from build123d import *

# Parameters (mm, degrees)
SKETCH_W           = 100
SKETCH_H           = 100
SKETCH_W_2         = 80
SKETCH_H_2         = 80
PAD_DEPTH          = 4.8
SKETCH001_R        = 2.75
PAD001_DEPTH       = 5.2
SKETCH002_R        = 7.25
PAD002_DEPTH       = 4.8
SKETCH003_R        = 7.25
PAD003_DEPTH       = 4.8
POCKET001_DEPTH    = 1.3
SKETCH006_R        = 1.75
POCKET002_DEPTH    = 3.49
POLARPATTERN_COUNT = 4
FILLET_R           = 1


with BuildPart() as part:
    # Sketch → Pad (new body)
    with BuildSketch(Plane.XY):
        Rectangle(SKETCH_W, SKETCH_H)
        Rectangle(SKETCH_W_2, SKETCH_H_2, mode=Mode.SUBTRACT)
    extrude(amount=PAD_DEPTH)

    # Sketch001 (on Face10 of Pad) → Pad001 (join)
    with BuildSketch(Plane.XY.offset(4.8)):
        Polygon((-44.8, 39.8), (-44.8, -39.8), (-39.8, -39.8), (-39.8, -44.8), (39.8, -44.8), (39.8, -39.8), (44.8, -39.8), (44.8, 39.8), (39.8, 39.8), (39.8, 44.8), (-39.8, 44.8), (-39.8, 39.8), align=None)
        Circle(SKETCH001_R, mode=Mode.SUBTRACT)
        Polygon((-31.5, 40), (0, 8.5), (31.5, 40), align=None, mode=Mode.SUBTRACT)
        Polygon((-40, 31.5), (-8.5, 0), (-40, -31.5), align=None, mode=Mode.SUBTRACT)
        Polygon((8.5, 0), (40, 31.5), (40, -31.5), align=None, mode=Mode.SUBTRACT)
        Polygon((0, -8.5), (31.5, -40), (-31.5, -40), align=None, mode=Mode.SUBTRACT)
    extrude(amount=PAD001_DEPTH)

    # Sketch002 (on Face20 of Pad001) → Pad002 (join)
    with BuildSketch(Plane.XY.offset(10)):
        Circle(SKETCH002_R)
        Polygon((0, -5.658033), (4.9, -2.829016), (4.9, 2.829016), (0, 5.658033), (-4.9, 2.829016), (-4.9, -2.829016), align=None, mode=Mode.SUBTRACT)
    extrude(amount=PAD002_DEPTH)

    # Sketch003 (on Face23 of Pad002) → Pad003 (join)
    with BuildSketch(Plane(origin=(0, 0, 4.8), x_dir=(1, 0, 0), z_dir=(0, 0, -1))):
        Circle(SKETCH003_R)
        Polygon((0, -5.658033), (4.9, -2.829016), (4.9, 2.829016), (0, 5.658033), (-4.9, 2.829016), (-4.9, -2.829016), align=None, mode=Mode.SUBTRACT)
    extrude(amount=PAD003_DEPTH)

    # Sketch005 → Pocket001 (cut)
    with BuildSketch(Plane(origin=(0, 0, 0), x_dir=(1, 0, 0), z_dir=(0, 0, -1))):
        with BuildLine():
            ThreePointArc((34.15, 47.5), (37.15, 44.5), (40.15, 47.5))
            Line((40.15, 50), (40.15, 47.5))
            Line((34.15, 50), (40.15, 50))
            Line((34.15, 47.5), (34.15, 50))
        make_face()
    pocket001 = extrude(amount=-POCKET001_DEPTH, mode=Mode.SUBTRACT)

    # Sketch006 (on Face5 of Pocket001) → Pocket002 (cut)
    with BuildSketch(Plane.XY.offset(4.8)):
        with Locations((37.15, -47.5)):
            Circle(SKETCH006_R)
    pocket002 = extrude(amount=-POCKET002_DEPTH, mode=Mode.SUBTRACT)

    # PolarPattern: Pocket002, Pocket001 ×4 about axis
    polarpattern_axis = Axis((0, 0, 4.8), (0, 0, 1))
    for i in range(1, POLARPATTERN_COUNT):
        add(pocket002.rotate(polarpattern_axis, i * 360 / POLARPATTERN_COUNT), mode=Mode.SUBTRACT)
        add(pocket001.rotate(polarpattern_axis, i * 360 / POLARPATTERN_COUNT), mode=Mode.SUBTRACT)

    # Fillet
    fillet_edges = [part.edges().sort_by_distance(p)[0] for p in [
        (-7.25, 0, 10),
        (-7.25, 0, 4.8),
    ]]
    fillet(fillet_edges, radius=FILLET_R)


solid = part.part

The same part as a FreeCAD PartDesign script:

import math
import FreeCAD as App
import Part
import Sketcher
from FreeCAD import Vector
Q = App.Units.Quantity


def edges_at(feature, points):
    """Names of the edges that pass closest to the given points."""
    edges = feature.Shape.Edges
    near = lambda p: min(range(len(edges)), key=lambda i: edges[i].distToShape(Part.Vertex(*p))[0])
    return sorted({f"Edge{near(p) + 1}" for p in points})

doc = App.newDocument("Part")
body = doc.addObject("PartDesign::Body", "Body")

sketch1 = body.newObject("Sketcher::SketchObject", "Sketch")
sketch1.AttachmentSupport = (doc.getObject("XY_Plane"), [""])
sketch1.MapMode = "FlatFace"
sketch1.addGeometry(Part.LineSegment(Vector(-50, 50, 0), Vector(-50, -50, 0)), False)
sketch1.addGeometry(Part.LineSegment(Vector(-50, -50, 0), Vector(50, -50, 0)), False)
sketch1.addGeometry(Part.LineSegment(Vector(50, -50, 0), Vector(50, 50, 0)), False)
sketch1.addGeometry(Part.LineSegment(Vector(50, 50, 0), Vector(-50, 50, 0)), False)
sketch1.addGeometry(Part.LineSegment(Vector(40, -40, 0), Vector(-40, -40, 0)), False)
sketch1.addGeometry(Part.LineSegment(Vector(-40, -40, 0), Vector(-40, 40, 0)), False)
sketch1.addGeometry(Part.LineSegment(Vector(-40, 40, 0), Vector(40, 40, 0)), False)
sketch1.addGeometry(Part.LineSegment(Vector(40, 40, 0), Vector(40, -40, 0)), False)
sketch1.addConstraint(Sketcher.Constraint("Coincident", 0, 2, 1, 1))
sketch1.addConstraint(Sketcher.Constraint("Coincident", 1, 2, 2, 1))
sketch1.addConstraint(Sketcher.Constraint("Coincident", 2, 2, 3, 1))
sketch1.addConstraint(Sketcher.Constraint("Coincident", 3, 2, 0, 1))
sketch1.addConstraint(Sketcher.Constraint("Coincident", 4, 2, 5, 1))
sketch1.addConstraint(Sketcher.Constraint("Coincident", 5, 2, 6, 1))
sketch1.addConstraint(Sketcher.Constraint("Coincident", 6, 2, 7, 1))
sketch1.addConstraint(Sketcher.Constraint("Coincident", 7, 2, 4, 1))
sketch1.addConstraint(Sketcher.Constraint("Vertical", 0))
sketch1.addConstraint(Sketcher.Constraint("Horizontal", 1))
sketch1.addConstraint(Sketcher.Constraint("Vertical", 2))
sketch1.addConstraint(Sketcher.Constraint("Horizontal", 3))
sketch1.addConstraint(Sketcher.Constraint("Horizontal", 4))
sketch1.addConstraint(Sketcher.Constraint("Vertical", 5))
sketch1.addConstraint(Sketcher.Constraint("Horizontal", 6))
sketch1.addConstraint(Sketcher.Constraint("Vertical", 7))
sketch1.addConstraint(Sketcher.Constraint("Symmetric", 0, 2, 2, 2, -1, 1))
sketch1.addConstraint(Sketcher.Constraint("Symmetric", 4, 2, 6, 2, -1, 1))
sketch1.addConstraint(Sketcher.Constraint("Equal", 3, 0))
sketch1.addConstraint(Sketcher.Constraint("Equal", 6, 5))
sketch1.addConstraint(Sketcher.Constraint("DistanceX", 1, 1, 1, 2, Q("100 mm")))
sketch1.addConstraint(Sketcher.Constraint("DistanceX", 4, 2, 4, 1, Q("80 mm")))
pad1 = body.newObject("PartDesign::Pad", "Pad")
pad1.Profile = sketch1
pad1.Length = 4.8

sketch2 = body.newObject("Sketcher::SketchObject", "Sketch001")
sketch2.AttachmentSupport = (doc.getObject("XY_Plane"), [""])
sketch2.MapMode = "FlatFace"
sketch2.AttachmentOffset = App.Placement(Vector(0, 0, 4.8), App.Rotation())
sketch2.addGeometry(Part.LineSegment(Vector(-44.8, 39.8, 0), Vector(-44.8, -39.8, 0)), False)
sketch2.addGeometry(Part.LineSegment(Vector(-44.8, -39.8, 0), Vector(-39.8, -39.8, 0)), False)
sketch2.addGeometry(Part.LineSegment(Vector(-39.8, -39.8, 0), Vector(-39.8, -44.8, 0)), False)
sketch2.addGeometry(Part.LineSegment(Vector(-39.8, -44.8, 0), Vector(39.8, -44.8, 0)), False)
sketch2.addGeometry(Part.LineSegment(Vector(39.8, -44.8, 0), Vector(39.8, -39.8, 0)), False)
sketch2.addGeometry(Part.LineSegment(Vector(39.8, -39.8, 0), Vector(44.8, -39.8, 0)), False)
sketch2.addGeometry(Part.LineSegment(Vector(44.8, -39.8, 0), Vector(44.8, 39.8, 0)), False)
sketch2.addGeometry(Part.LineSegment(Vector(44.8, 39.8, 0), Vector(39.8, 39.8, 0)), False)
sketch2.addGeometry(Part.LineSegment(Vector(39.8, 39.8, 0), Vector(39.8, 44.8, 0)), False)
sketch2.addGeometry(Part.LineSegment(Vector(39.8, 44.8, 0), Vector(-39.8, 44.8, 0)), False)
sketch2.addGeometry(Part.LineSegment(Vector(-39.8, 44.8, 0), Vector(-39.8, 39.8, 0)), False)
sketch2.addGeometry(Part.LineSegment(Vector(-39.8, 39.8, 0), Vector(-44.8, 39.8, 0)), False)
sketch2.addGeometry(Part.LineSegment(Vector(-31.5, -40, 0), Vector(0, -8.5, 0)), False)
sketch2.addGeometry(Part.LineSegment(Vector(0, -8.5, 0), Vector(31.5, -40, 0)), False)
sketch2.addGeometry(Part.LineSegment(Vector(31.5, -40, 0), Vector(-31.5, -40, 0)), False)
sketch2.addGeometry(Part.LineSegment(Vector(-40, -31.5, 0), Vector(-40, 31.5, 0)), False)
sketch2.addGeometry(Part.LineSegment(Vector(-40, 31.5, 0), Vector(-8.5, 0, 0)), False)
sketch2.addGeometry(Part.LineSegment(Vector(-8.5, 0, 0), Vector(-40, -31.5, 0)), False)
sketch2.addGeometry(Part.Circle(Vector(0, 0, 0), Vector(0, 0, 1), 2.8), False)
sketch2.addGeometry(Part.LineSegment(Vector(40, -31.5, 0), Vector(8.5, 0, 0)), False)
sketch2.addGeometry(Part.LineSegment(Vector(8.5, 0, 0), Vector(40, 31.5, 0)), False)
sketch2.addGeometry(Part.LineSegment(Vector(40, 31.5, 0), Vector(40, -31.5, 0)), False)
sketch2.addGeometry(Part.LineSegment(Vector(0, 8.5, 0), Vector(-31.5, 40, 0)), False)
sketch2.addGeometry(Part.LineSegment(Vector(-31.5, 40, 0), Vector(31.5, 40, 0)), False)
sketch2.addGeometry(Part.LineSegment(Vector(31.5, 40, 0), Vector(0, 8.5, 0)), False)
sketch2.addConstraint(Sketcher.Constraint("Coincident", 0, 2, 1, 1))
sketch2.addConstraint(Sketcher.Constraint("Coincident", 1, 2, 2, 1))
sketch2.addConstraint(Sketcher.Constraint("Coincident", 2, 2, 3, 1))
sketch2.addConstraint(Sketcher.Constraint("Coincident", 3, 2, 4, 1))
sketch2.addConstraint(Sketcher.Constraint("Coincident", 4, 2, 5, 1))
sketch2.addConstraint(Sketcher.Constraint("Coincident", 5, 2, 6, 1))
sketch2.addConstraint(Sketcher.Constraint("Coincident", 6, 2, 7, 1))
sketch2.addConstraint(Sketcher.Constraint("Coincident", 7, 2, 8, 1))
sketch2.addConstraint(Sketcher.Constraint("Coincident", 8, 2, 9, 1))
sketch2.addConstraint(Sketcher.Constraint("Coincident", 9, 2, 10, 1))
sketch2.addConstraint(Sketcher.Constraint("Coincident", 10, 2, 11, 1))
sketch2.addConstraint(Sketcher.Constraint("Coincident", 11, 2, 0, 1))
sketch2.addConstraint(Sketcher.Constraint("Coincident", 12, 2, 13, 1))
sketch2.addConstraint(Sketcher.Constraint("Coincident", 13, 2, 14, 1))
sketch2.addConstraint(Sketcher.Constraint("Coincident", 14, 2, 12, 1))
sketch2.addConstraint(Sketcher.Constraint("Coincident", 15, 2, 16, 1))
sketch2.addConstraint(Sketcher.Constraint("Coincident", 16, 2, 17, 1))
sketch2.addConstraint(Sketcher.Constraint("Coincident", 17, 2, 15, 1))
sketch2.addConstraint(Sketcher.Constraint("Coincident", 19, 2, 20, 1))
sketch2.addConstraint(Sketcher.Constraint("Coincident", 20, 2, 21, 1))
sketch2.addConstraint(Sketcher.Constraint("Coincident", 21, 2, 19, 1))
sketch2.addConstraint(Sketcher.Constraint("Coincident", 22, 2, 23, 1))
sketch2.addConstraint(Sketcher.Constraint("Coincident", 23, 2, 24, 1))
sketch2.addConstraint(Sketcher.Constraint("Coincident", 24, 2, 22, 1))
sketch2.addConstraint(Sketcher.Constraint("Vertical", 0))
sketch2.addConstraint(Sketcher.Constraint("Horizontal", 1))
sketch2.addConstraint(Sketcher.Constraint("Vertical", 2))
sketch2.addConstraint(Sketcher.Constraint("Horizontal", 3))
sketch2.addConstraint(Sketcher.Constraint("Vertical", 4))
sketch2.addConstraint(Sketcher.Constraint("Horizontal", 5))
sketch2.addConstraint(Sketcher.Constraint("Vertical", 6))
sketch2.addConstraint(Sketcher.Constraint("Horizontal", 7))
sketch2.addConstraint(Sketcher.Constraint("Vertical", 8))
sketch2.addConstraint(Sketcher.Constraint("Horizontal", 9))
sketch2.addConstraint(Sketcher.Constraint("Vertical", 10))
sketch2.addConstraint(Sketcher.Constraint("Horizontal", 11))
sketch2.addConstraint(Sketcher.Constraint("Horizontal", 14))
sketch2.addConstraint(Sketcher.Constraint("Vertical", 15))
sketch2.addConstraint(Sketcher.Constraint("Vertical", 21))
sketch2.addConstraint(Sketcher.Constraint("Horizontal", 23))
sketch2.addConstraint(Sketcher.Constraint("Coincident", 18, 3, -1, 1))
sketch2.addConstraint(Sketcher.Constraint("Symmetric", 0, 2, 6, 2, -1, 1))
sketch2.addConstraint(Sketcher.Constraint("Symmetric", 2, 2, 8, 2, -1, 1))
sketch2.addConstraint(Sketcher.Constraint("Symmetric", 4, 2, 10, 2, -1, 1))
sketch2.addConstraint(Sketcher.Constraint("Symmetric", 16, 2, 19, 2, -1, 1))
sketch2.addConstraint(Sketcher.Constraint("Symmetric", 17, 2, 20, 2, -1, 1))
sketch2.addConstraint(Sketcher.Constraint("Symmetric", 13, 2, 22, 2, -1, 1))
sketch2.addConstraint(Sketcher.Constraint("Symmetric", 12, 2, 24, 2, -1, 1))
sketch2.addConstraint(Sketcher.Constraint("Symmetric", 1, 2, 4, 2, -2))
sketch2.addConstraint(Sketcher.Constraint("PointOnObject", 12, 2, -2))
sketch2.addConstraint(Sketcher.Constraint("PointOnObject", 16, 2, -1))
sketch2.addConstraint(Sketcher.Constraint("Perpendicular", 12, 13))
sketch2.addConstraint(Sketcher.Constraint("Parallel", 13, 16))
sketch2.addConstraint(Sketcher.Constraint("Perpendicular", 16, 17))
sketch2.addConstraint(Sketcher.Constraint("Perpendicular", 17, 19))
sketch2.addConstraint(Sketcher.Constraint("Perpendicular", 22, 24))
sketch2.addConstraint(Sketcher.Constraint("Horizontal", 15, 2, 20, 2))
sketch2.addConstraint(Sketcher.Constraint("Equal", 9, 0))
sketch2.addConstraint(Sketcher.Constraint("Equal", 11, 2))
sketch2.addConstraint(Sketcher.Constraint("Equal", 23, 15))
sketch2.addConstraint(Sketcher.Constraint("Diameter", 18, Q("5.5 mm")))
sketch2.addConstraint(Sketcher.Constraint("DistanceX", 1, 1, 1, 2, Q("5 mm")))
sketch2.addConstraint(Sketcher.Constraint("DistanceX", 14, 2, 14, 1, Q("63 mm")))
sketch2.addConstraint(Sketcher.Constraint("DistanceX", 3, 1, 3, 2, Q("79.6 mm")))
sketch2.addConstraint(Sketcher.Constraint("DistanceY", 13, 2, -1, 1, Q("40 mm")))
sketch2.addConstraint(Sketcher.Constraint("DistanceX", 15, 2, -1, 1, Q("40 mm")))
pad2 = body.newObject("PartDesign::Pad", "Pad001")
pad2.Profile = sketch2
pad2.Length = 5.2

sketch3 = body.newObject("Sketcher::SketchObject", "Sketch002")
sketch3.AttachmentSupport = (doc.getObject("XY_Plane"), [""])
sketch3.MapMode = "FlatFace"
sketch3.AttachmentOffset = App.Placement(Vector(0, 0, 10), App.Rotation())
sketch3.addGeometry(Part.Circle(Vector(0, 0, 0), Vector(0, 0, 1), 7), False)
sketch3.addGeometry(Part.LineSegment(Vector(5, -3, 0), Vector(0, -6, 0)), False)
sketch3.addGeometry(Part.LineSegment(Vector(0, -6, 0), Vector(-5, -3, 0)), False)
sketch3.addGeometry(Part.LineSegment(Vector(-5, -3, 0), Vector(-5, 3, 0)), False)
sketch3.addGeometry(Part.LineSegment(Vector(-5, 3, 0), Vector(0, 6, 0)), False)
sketch3.addGeometry(Part.LineSegment(Vector(0, 6, 0), Vector(5, 3, 0)), False)
sketch3.addGeometry(Part.LineSegment(Vector(5, 3, 0), Vector(5, -3, 0)), False)
sketch3.addConstraint(Sketcher.Constraint("Coincident", 1, 2, 2, 1))
sketch3.addConstraint(Sketcher.Constraint("Coincident", 2, 2, 3, 1))
sketch3.addConstraint(Sketcher.Constraint("Coincident", 3, 2, 4, 1))
sketch3.addConstraint(Sketcher.Constraint("Coincident", 4, 2, 5, 1))
sketch3.addConstraint(Sketcher.Constraint("Coincident", 5, 2, 6, 1))
sketch3.addConstraint(Sketcher.Constraint("Coincident", 6, 2, 1, 1))
sketch3.addConstraint(Sketcher.Constraint("Vertical", 3))
sketch3.addConstraint(Sketcher.Constraint("Vertical", 6))
sketch3.addConstraint(Sketcher.Constraint("Coincident", 0, 3, -1, 1))
sketch3.addConstraint(Sketcher.Constraint("Symmetric", 1, 2, 4, 2, -1, 1))
sketch3.addConstraint(Sketcher.Constraint("Symmetric", 2, 2, 5, 2, -1, 1))
sketch3.addConstraint(Sketcher.Constraint("PointOnObject", 1, 2, -2))
sketch3.addConstraint(Sketcher.Constraint("Parallel", 1, 4))
sketch3.addConstraint(Sketcher.Constraint("Horizontal", 3, 2, 5, 2))
sketch3.addConstraint(Sketcher.Constraint("Diameter", 0, Q("14.5 mm")))
sketch3.addConstraint(Sketcher.Constraint("Angle", 1, Q("-149.999994 deg")))
sketch3.addConstraint(Sketcher.Constraint("DistanceX", 2, 2, -1, 1, Q("4.9 mm")))
sketch3.addConstraint(Sketcher.Constraint("DistanceY", 3, 1, 3, 2, Q("5.658032 mm")))
pad3 = body.newObject("PartDesign::Pad", "Pad002")
pad3.Profile = sketch3
pad3.Length = 4.8

sketch4 = body.newObject("Sketcher::SketchObject", "Sketch003")
sketch4.AttachmentSupport = (doc.getObject("XY_Plane"), [""])
sketch4.MapMode = "FlatFace"
sketch4.AttachmentOffset = App.Placement(Vector(0, 0, 4.8), App.Rotation())
sketch4.addGeometry(Part.Circle(Vector(0, 0, 0), Vector(0, 0, 1), 7), False)
sketch4.addGeometry(Part.LineSegment(Vector(5, 3, 0), Vector(0, 6, 0)), False)
sketch4.addGeometry(Part.LineSegment(Vector(0, 6, 0), Vector(-5, 3, 0)), False)
sketch4.addGeometry(Part.LineSegment(Vector(-5, 3, 0), Vector(-5, -3, 0)), False)
sketch4.addGeometry(Part.LineSegment(Vector(-5, -3, 0), Vector(0, -6, 0)), False)
sketch4.addGeometry(Part.LineSegment(Vector(0, -6, 0), Vector(5, -3, 0)), False)
sketch4.addGeometry(Part.LineSegment(Vector(5, -3, 0), Vector(5, 3, 0)), False)
sketch4.addConstraint(Sketcher.Constraint("Coincident", 1, 2, 2, 1))
sketch4.addConstraint(Sketcher.Constraint("Coincident", 2, 2, 3, 1))
sketch4.addConstraint(Sketcher.Constraint("Coincident", 3, 2, 4, 1))
sketch4.addConstraint(Sketcher.Constraint("Coincident", 4, 2, 5, 1))
sketch4.addConstraint(Sketcher.Constraint("Coincident", 5, 2, 6, 1))
sketch4.addConstraint(Sketcher.Constraint("Coincident", 6, 2, 1, 1))
sketch4.addConstraint(Sketcher.Constraint("Vertical", 3))
sketch4.addConstraint(Sketcher.Constraint("Vertical", 6))
sketch4.addConstraint(Sketcher.Constraint("Coincident", 0, 3, -1, 1))
sketch4.addConstraint(Sketcher.Constraint("Symmetric", 1, 2, 4, 2, -1, 1))
sketch4.addConstraint(Sketcher.Constraint("Symmetric", 2, 2, 5, 2, -1, 1))
sketch4.addConstraint(Sketcher.Constraint("PointOnObject", 1, 2, -2))
sketch4.addConstraint(Sketcher.Constraint("Parallel", 1, 4))
sketch4.addConstraint(Sketcher.Constraint("Horizontal", 3, 2, 5, 2))
sketch4.addConstraint(Sketcher.Constraint("Diameter", 0, Q("14.5 mm")))
sketch4.addConstraint(Sketcher.Constraint("Angle", 1, Q("149.999994 deg")))
sketch4.addConstraint(Sketcher.Constraint("DistanceX", 2, 2, -1, 1, Q("4.9 mm")))
sketch4.addConstraint(Sketcher.Constraint("DistanceY", 3, 2, 3, 1, Q("5.658032 mm")))
pad4 = body.newObject("PartDesign::Pad", "Pad003")
pad4.Profile = sketch4
pad4.Length = 4.8
pad4.Reversed = True

sketch5 = body.newObject("Sketcher::SketchObject", "Sketch004")
sketch5.AttachmentSupport = (doc.getObject("XY_Plane"), [""])
sketch5.MapMode = "FlatFace"
sketch5.addGeometry(Part.ArcOfCircle(Part.Circle(Vector(37.1, -47.5, 0), Vector(0, 0, 1), 3), math.radians(0), math.radians(180)), False)
sketch5.addGeometry(Part.LineSegment(Vector(40.1, -47.5, 0), Vector(40.1, -50, 0)), False)
sketch5.addGeometry(Part.LineSegment(Vector(40.1, -50, 0), Vector(34.1, -50, 0)), False)
sketch5.addGeometry(Part.LineSegment(Vector(34.1, -50, 0), Vector(34.1, -47.5, 0)), False)
sketch5.addConstraint(Sketcher.Constraint("Tangent", 0, 1, 1, 1))
sketch5.addConstraint(Sketcher.Constraint("Coincident", 1, 2, 2, 1))
sketch5.addConstraint(Sketcher.Constraint("Coincident", 2, 2, 3, 1))
sketch5.addConstraint(Sketcher.Constraint("Tangent", 3, 2, 0, 2))
sketch5.addConstraint(Sketcher.Constraint("Vertical", 1))
sketch5.addConstraint(Sketcher.Constraint("Horizontal", 2))
sketch5.addConstraint(Sketcher.Constraint("Vertical", 3))
sketch5.addConstraint(Sketcher.Constraint("Radius", 0, Q("3 mm")))
sketch5.addConstraint(Sketcher.Constraint("DistanceY", 1, 2, 1, 1, Q("2.5 mm")))
sketch5.addConstraint(Sketcher.Constraint("DistanceY", 1, 2, -1, 1, Q("50 mm")))
sketch5.addConstraint(Sketcher.Constraint("DistanceX", -1, 1, 0, 3, Q("37.15 mm")))
pocket1 = body.newObject("PartDesign::Pocket", "Pocket")
pocket1.Profile = sketch5
pocket1.Length = 1.3
pocket1.Reversed = True

sketch6 = body.newObject("Sketcher::SketchObject", "Sketch005")
sketch6.AttachmentSupport = (doc.getObject("XY_Plane"), [""])
sketch6.MapMode = "FlatFace"
sketch6.AttachmentOffset = App.Placement(Vector(0, 0, 4.8), App.Rotation())
sketch6.addGeometry(Part.Circle(Vector(37.1, -47.5, 0), Vector(0, 0, 1), 1.8), False)
sketch6.addConstraint(Sketcher.Constraint("Diameter", 0, Q("3.5 mm")))
sketch6.addConstraint(Sketcher.Constraint("DistanceY", 0, 3, -1, 1, Q("47.5 mm")))
sketch6.addConstraint(Sketcher.Constraint("DistanceX", -1, 1, 0, 3, Q("37.15 mm")))
pocket2 = body.newObject("PartDesign::Pocket", "Pocket001")
pocket2.Profile = sketch6
pocket2.Length = 3.49
doc.recompute()

polarpattern = body.newObject("PartDesign::PolarPattern", "PolarPattern")
polarpattern.Originals = [pocket2, pocket1]
polarpattern.Axis = (doc.getObject("Z_Axis"), [""])
polarpattern.Angle = 360
polarpattern.Occurrences = 4
body.Tip = polarpattern
doc.recompute()

fillet = body.newObject("PartDesign::Fillet", "Fillet")
fillet.Base = (polarpattern, edges_at(polarpattern, [(-7.25, 0, 10), (-7.25, 0, 4.8)]))
fillet.Radius = 1

doc.recompute()
